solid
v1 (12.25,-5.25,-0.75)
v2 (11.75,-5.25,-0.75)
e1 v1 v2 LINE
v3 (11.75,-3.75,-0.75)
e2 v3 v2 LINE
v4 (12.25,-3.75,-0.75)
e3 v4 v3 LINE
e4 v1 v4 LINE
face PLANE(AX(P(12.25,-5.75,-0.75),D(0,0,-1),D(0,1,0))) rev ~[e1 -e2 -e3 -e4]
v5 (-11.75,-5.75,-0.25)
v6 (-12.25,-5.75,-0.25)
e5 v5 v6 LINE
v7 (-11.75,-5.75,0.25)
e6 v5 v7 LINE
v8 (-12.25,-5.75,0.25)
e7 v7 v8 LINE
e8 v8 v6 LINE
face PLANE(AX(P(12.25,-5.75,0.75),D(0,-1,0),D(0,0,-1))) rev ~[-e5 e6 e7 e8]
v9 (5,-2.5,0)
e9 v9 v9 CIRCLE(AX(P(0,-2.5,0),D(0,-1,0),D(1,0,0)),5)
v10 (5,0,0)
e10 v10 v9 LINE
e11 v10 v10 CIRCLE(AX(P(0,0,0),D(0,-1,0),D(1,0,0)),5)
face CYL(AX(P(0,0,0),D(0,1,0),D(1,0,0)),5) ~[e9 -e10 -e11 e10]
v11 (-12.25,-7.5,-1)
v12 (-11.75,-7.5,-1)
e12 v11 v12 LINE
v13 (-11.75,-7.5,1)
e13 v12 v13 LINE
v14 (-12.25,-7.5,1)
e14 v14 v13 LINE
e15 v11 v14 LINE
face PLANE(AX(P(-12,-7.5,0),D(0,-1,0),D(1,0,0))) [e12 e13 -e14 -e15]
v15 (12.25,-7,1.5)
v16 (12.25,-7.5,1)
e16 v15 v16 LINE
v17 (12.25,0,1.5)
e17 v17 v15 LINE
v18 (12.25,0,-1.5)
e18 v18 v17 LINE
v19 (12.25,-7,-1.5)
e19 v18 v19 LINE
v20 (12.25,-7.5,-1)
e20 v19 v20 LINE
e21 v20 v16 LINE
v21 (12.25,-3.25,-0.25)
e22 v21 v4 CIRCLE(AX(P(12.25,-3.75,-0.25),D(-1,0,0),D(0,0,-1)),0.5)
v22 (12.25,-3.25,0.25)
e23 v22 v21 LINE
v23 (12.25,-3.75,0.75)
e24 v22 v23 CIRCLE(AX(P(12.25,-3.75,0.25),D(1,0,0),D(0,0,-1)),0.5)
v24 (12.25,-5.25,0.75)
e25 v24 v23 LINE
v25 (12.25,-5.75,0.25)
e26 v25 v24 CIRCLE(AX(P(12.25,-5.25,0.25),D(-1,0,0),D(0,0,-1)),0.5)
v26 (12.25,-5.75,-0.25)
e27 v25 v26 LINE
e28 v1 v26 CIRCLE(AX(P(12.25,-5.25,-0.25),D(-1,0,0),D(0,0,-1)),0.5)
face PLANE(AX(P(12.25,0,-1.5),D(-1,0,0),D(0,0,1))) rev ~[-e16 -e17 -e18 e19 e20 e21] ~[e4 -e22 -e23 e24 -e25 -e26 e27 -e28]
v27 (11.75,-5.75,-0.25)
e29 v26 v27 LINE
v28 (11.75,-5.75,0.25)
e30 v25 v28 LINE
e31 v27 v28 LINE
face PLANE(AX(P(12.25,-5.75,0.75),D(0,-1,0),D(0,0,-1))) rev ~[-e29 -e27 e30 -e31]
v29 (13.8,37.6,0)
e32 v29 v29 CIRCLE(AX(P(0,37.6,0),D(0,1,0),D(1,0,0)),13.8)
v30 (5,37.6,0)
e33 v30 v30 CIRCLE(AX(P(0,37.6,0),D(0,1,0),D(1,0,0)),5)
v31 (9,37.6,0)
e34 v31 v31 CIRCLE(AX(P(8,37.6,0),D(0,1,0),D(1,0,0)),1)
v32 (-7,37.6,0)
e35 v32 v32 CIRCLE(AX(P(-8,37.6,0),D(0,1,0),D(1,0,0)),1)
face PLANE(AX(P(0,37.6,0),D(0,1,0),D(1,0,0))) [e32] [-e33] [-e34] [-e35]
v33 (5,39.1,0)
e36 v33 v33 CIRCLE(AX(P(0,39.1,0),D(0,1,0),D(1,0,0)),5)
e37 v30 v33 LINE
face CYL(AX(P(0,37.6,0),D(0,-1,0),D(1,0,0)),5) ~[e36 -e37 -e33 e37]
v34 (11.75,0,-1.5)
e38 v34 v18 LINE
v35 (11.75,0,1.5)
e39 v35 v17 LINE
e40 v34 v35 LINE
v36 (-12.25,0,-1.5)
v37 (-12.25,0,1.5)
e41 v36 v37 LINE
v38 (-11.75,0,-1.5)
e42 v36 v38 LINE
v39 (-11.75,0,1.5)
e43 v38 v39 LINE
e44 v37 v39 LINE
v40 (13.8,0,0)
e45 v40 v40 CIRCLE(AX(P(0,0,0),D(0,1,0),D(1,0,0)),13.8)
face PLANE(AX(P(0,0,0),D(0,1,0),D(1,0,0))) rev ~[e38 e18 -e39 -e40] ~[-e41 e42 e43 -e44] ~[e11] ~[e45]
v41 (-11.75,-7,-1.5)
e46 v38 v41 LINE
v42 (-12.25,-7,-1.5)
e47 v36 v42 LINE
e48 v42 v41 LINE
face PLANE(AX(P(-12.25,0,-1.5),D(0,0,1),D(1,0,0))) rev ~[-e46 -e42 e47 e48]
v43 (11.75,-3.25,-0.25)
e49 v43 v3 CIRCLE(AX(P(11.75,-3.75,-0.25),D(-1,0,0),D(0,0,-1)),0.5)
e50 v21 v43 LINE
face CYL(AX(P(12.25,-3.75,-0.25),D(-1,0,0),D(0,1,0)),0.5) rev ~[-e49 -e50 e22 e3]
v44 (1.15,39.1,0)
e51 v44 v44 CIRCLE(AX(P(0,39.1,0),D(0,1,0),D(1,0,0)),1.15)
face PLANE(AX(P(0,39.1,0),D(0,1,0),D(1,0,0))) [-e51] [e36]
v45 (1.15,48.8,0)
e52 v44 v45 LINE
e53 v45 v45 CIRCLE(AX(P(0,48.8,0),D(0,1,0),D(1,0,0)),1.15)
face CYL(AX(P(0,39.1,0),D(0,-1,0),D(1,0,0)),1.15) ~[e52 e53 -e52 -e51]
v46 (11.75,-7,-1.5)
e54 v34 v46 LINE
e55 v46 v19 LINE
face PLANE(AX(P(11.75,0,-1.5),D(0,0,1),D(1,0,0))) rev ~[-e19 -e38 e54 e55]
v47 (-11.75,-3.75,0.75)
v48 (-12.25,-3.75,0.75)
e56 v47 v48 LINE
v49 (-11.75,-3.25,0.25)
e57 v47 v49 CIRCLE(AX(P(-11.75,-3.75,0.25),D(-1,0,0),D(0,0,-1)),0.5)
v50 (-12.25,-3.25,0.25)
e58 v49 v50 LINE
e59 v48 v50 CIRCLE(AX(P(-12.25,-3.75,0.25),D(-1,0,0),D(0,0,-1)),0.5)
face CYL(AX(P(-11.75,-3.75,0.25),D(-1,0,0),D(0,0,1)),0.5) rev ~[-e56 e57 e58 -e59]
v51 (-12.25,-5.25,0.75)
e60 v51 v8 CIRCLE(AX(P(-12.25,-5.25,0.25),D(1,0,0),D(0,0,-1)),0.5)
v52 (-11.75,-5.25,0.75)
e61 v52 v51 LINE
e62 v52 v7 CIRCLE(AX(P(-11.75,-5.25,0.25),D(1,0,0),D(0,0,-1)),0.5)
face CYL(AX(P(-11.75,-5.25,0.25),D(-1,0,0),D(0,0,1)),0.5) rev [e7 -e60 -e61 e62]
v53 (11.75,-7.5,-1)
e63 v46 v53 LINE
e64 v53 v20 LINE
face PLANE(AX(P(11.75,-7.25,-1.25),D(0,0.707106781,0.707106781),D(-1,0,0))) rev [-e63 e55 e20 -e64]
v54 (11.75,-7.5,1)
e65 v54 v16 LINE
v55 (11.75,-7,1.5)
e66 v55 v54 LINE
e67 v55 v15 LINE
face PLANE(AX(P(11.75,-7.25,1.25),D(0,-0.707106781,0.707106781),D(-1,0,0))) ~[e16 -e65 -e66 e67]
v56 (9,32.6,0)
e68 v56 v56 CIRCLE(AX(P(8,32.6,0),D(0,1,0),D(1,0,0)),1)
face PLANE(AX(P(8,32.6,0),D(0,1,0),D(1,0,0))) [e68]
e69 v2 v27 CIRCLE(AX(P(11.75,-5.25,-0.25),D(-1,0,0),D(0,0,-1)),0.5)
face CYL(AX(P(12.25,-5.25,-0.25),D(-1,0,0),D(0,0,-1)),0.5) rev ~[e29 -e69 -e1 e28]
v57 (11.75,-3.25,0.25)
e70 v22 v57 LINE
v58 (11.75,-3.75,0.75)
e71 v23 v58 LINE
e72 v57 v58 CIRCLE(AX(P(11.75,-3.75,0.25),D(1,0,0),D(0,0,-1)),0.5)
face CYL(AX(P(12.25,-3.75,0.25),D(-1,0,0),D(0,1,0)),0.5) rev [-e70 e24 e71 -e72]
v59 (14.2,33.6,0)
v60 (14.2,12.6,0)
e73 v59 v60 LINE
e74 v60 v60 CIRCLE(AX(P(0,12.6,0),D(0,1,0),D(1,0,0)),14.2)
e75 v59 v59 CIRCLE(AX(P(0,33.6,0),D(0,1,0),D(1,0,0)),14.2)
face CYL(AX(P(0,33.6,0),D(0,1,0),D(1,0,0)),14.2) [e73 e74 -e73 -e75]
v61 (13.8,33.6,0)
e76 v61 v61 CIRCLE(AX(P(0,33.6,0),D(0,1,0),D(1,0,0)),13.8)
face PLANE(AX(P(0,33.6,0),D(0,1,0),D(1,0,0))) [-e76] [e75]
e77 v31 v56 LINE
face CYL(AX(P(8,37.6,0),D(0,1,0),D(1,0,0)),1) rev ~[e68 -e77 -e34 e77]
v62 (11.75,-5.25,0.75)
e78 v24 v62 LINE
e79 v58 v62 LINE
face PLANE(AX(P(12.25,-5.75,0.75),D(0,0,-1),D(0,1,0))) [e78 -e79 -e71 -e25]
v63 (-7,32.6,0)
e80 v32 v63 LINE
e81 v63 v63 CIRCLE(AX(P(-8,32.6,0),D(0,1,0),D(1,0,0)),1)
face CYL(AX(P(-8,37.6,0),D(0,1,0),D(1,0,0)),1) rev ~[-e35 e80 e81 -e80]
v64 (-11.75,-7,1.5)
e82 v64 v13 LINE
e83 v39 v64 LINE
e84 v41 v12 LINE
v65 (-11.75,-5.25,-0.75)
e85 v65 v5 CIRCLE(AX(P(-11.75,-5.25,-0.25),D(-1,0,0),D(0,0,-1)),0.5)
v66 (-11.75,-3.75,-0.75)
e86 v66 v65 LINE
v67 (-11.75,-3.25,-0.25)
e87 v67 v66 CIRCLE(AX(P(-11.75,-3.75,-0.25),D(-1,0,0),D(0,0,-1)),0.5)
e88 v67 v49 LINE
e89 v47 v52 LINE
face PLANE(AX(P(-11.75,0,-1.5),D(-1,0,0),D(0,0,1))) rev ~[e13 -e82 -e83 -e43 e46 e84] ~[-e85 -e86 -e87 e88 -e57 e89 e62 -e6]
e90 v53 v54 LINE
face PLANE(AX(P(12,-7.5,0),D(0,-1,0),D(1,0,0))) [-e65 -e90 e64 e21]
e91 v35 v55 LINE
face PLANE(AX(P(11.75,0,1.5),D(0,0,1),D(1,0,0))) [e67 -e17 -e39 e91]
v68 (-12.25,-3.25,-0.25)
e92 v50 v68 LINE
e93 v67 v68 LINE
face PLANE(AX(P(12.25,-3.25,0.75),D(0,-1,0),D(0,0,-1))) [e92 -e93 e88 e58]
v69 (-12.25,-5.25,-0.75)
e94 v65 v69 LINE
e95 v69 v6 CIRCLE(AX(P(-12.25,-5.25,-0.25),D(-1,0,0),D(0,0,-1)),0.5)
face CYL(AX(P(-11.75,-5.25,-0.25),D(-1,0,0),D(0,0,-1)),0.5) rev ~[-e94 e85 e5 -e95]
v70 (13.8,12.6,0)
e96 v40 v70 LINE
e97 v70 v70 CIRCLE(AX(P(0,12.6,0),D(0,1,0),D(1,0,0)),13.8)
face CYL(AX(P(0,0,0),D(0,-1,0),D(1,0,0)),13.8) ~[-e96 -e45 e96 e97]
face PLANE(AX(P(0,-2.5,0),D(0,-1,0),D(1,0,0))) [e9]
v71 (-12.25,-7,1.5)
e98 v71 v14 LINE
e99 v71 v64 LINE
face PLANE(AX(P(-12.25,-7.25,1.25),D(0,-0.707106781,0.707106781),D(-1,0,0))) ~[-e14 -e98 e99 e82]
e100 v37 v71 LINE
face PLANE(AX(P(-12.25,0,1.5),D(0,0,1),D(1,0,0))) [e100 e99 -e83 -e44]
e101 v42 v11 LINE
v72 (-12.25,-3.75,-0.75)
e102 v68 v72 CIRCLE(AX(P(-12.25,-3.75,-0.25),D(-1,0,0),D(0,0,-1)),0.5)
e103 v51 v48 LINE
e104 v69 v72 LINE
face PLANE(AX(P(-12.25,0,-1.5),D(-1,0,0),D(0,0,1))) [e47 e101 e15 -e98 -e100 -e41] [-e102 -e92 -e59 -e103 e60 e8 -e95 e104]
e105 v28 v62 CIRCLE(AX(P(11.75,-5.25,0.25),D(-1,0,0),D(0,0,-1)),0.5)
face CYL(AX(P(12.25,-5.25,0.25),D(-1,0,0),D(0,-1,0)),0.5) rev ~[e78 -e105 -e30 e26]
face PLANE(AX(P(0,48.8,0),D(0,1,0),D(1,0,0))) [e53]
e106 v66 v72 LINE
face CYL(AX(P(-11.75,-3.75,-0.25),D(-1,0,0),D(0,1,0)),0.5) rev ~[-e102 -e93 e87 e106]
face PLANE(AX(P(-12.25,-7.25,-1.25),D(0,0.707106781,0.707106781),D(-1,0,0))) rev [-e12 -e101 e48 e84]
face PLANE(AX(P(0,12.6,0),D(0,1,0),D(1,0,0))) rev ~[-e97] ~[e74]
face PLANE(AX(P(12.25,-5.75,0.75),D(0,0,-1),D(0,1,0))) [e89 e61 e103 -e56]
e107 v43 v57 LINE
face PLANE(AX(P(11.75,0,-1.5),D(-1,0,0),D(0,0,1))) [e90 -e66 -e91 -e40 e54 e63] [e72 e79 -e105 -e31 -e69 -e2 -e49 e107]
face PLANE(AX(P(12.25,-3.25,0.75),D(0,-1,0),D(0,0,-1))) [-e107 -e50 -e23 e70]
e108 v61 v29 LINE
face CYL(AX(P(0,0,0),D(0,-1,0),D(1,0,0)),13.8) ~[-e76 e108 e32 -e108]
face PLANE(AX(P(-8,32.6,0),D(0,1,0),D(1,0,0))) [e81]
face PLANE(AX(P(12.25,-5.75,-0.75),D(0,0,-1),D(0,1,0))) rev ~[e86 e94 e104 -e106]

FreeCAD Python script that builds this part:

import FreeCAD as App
import Part
import Sketcher
from FreeCAD import Vector
Q = App.Units.Quantity


def edges_at(feature, points):
    """Names of the edges that pass closest to the given points."""
    edges = feature.Shape.Edges
    near = lambda p: min(range(len(edges)), key=lambda i: edges[i].distToShape(Part.Vertex(*p))[0])
    return sorted({f"Edge{near(p) + 1}" for p in points})


def add_polygon(sketch, points):
    """Adds a closed chain of lines whose ends are joined by coincident constraints."""
    first, n = sketch.GeometryCount, len(points)
    for a, b in zip(points, points[1:] + points[:1]):
        sketch.addGeometry(Part.LineSegment(App.Vector(*a, 0), App.Vector(*b, 0)), False)
    for i in range(n):
        sketch.addConstraint(Sketcher.Constraint("Coincident", first + i, 2, first + (i + 1) % n, 1))

doc = App.newDocument("Part")
body = doc.addObject("PartDesign::Body", "Body")

# Sketch on XZ plane
sketch1 = body.newObject("Sketcher::SketchObject", "Sketch")
sketch1.AttachmentSupport = (doc.getObject("XZ_Plane"), [""])
sketch1.MapMode = "FlatFace"
sketch1.addGeometry(Part.Circle(Vector(0, 0, 0), Vector(0, 0, 1), 13.8), False)
sketch1.addConstraint([
    Sketcher.Constraint("Coincident", 0, 3, -1, 1),
    Sketcher.Constraint("Diameter", 0, Q("27.6 mm")),
])
pad1 = body.newObject("PartDesign::Pad", "Pad")
pad1.Profile = sketch1
pad1.Length = 37.6
pad1.Reversed = True

# Sketch on XZ plane
sketch2 = body.newObject("Sketcher::SketchObject", "Sketch001")
sketch2.AttachmentSupport = (doc.getObject("XZ_Plane"), [""])
sketch2.MapMode = "FlatFace"
sketch2.AttachmentOffset = App.Placement(Vector(0, 0, -37.6), App.Rotation())
sketch2.addGeometry(Part.Circle(Vector(0, 0, 0), Vector(0, 0, 1), 5), False)
sketch2.addConstraint([
    Sketcher.Constraint("Coincident", 0, 3, -1, 1),
    Sketcher.Constraint("Diameter", 0, Q("10 mm")),
])
pad2 = body.newObject("PartDesign::Pad", "Pad001")
pad2.Profile = sketch2
pad2.Length = 1.5
pad2.Reversed = True

# Sketch on XZ plane
sketch3 = body.newObject("Sketcher::SketchObject", "Sketch002")
sketch3.AttachmentSupport = (doc.getObject("XZ_Plane"), [""])
sketch3.MapMode = "FlatFace"
sketch3.AttachmentOffset = App.Placement(Vector(0, 0, -39.1), App.Rotation())
sketch3.addGeometry(Part.Circle(Vector(0, 0, 0), Vector(0, 0, 1), 1.15), False)
sketch3.addConstraint([
    Sketcher.Constraint("Coincident", 0, 3, -1, 1),
    Sketcher.Constraint("Diameter", 0, Q("2.3 mm")),
])
pad3 = body.newObject("PartDesign::Pad", "Pad002")
pad3.Profile = sketch3
pad3.Length = 9.7
pad3.Reversed = True

# Sketch on XZ plane
sketch4 = body.newObject("Sketcher::SketchObject", "Sketch003")
sketch4.AttachmentSupport = (doc.getObject("XZ_Plane"), [""])
sketch4.MapMode = "FlatFace"
sketch4.AttachmentOffset = App.Placement(Vector(0, 0, -37.6), App.Rotation())
sketch4.addGeometry([
    Part.Circle(Vector(8, 0, 0), Vector(0, 0, 1), 1),
    Part.Circle(Vector(-8, 0, 0), Vector(0, 0, 1), 1),
], False)
sketch4.addConstraint([
    Sketcher.Constraint("Equal", 0, 1),
    Sketcher.Constraint("Symmetric", 0, 3, 1, 3, -1, 1),
    Sketcher.Constraint("PointOnObject", 0, 3, -1),
    Sketcher.Constraint("Diameter", 0, Q("2 mm")),
    Sketcher.Constraint("DistanceX", -1, 1, 0, 3, Q("8 mm")),
])
pocket1 = body.newObject("PartDesign::Pocket", "Pocket")
pocket1.Profile = sketch4
pocket1.Length = 5
pocket1.Reversed = True

# Sketch on XZ plane
sketch5 = body.newObject("Sketcher::SketchObject", "Sketch004")
sketch5.AttachmentSupport = (doc.getObject("XZ_Plane"), [""])
sketch5.MapMode = "FlatFace"
sketch5.addGeometry(Part.Circle(Vector(0, 0, 0), Vector(0, 0, 1), 5), False)
sketch5.addConstraint([
    Sketcher.Constraint("Coincident", 0, 3, -1, 1),
    Sketcher.Constraint("Diameter", 0, Q("10 mm")),
])
pad4 = body.newObject("PartDesign::Pad", "Pad003")
pad4.Profile = sketch5
pad4.Length = 2.5

# Sketch on XZ plane
sketch6 = body.newObject("Sketcher::SketchObject", "Sketch005")
sketch6.AttachmentSupport = (doc.getObject("XZ_Plane"), [""])
sketch6.MapMode = "FlatFace"
add_polygon(sketch6, [(11.75, 1.5), (11.75, -1.5), (12.25, -1.5), (12.25, 1.5)])  # lines 0-3
add_polygon(sketch6, [(-12.25, 1.5), (-12.25, -1.5), (-11.75, -1.5), (-11.75, 1.5)])  # lines 4-7
sketch6.addConstraint([
    Sketcher.Constraint("Vertical", 0),
    Sketcher.Constraint("Horizontal", 1),
    Sketcher.Constraint("Vertical", 2),
    Sketcher.Constraint("Horizontal", 3),
    Sketcher.Constraint("Vertical", 4),
    Sketcher.Constraint("Horizontal", 5),
    Sketcher.Constraint("Vertical", 6),
    Sketcher.Constraint("Horizontal", 7),
    Sketcher.Constraint("Symmetric", 2, 2, 4, 2, -1, 1),
    Sketcher.Constraint("Symmetric", 0, 2, 6, 2, -1, 1),
    Sketcher.Constraint("Horizontal", 1, 2, 4, 2),
    Sketcher.Constraint("DistanceY", 0, 2, 0, 1, Q("3 mm")),
    Sketcher.Constraint("DistanceX", 1, 1, 1, 2, Q("0.5 mm")),
    Sketcher.Constraint("DistanceX", 4, 2, 0, 2, Q("24 mm")),
])
pad5 = body.newObject("PartDesign::Pad", "Pad004")
pad5.Profile = sketch6
pad5.Length = 7.5

# Sketch on YZ plane
sketch7 = body.newObject("Sketcher::SketchObject", "Sketch006")
sketch7.AttachmentSupport = (doc.getObject("YZ_Plane"), [""])
sketch7.MapMode = "FlatFace"
sketch7.AttachmentOffset = App.Placement(Vector(0, 0, 12.25), App.Rotation())
add_polygon(sketch7, [(-3.25, 0.75), (-5.75, 0.75), (-5.75, -0.75), (-3.25, -0.75)])  # lines 0-3
sketch7.addConstraint([
    Sketcher.Constraint("Horizontal", 0),
    Sketcher.Constraint("Vertical", 1),
    Sketcher.Constraint("Horizontal", 2),
    Sketcher.Constraint("Vertical", 3),
    Sketcher.Constraint("DistanceX", 0, 2, 0, 1, Q("2.5 mm")),
    Sketcher.Constraint("DistanceY", 1, 2, 1, 1, Q("1.5 mm")),
    Sketcher.Constraint("DistanceX", 0, 2, -1, 1, Q("5.75 mm")),
    Sketcher.Constraint("DistanceY", -1, 1, 0, 2, Q("0.75 mm")),
])
pocket2 = body.newObject("PartDesign::Pocket", "Pocket001")
pocket2.Profile = sketch7
pocket2.Length = 24.5
doc.recompute()

chamfer = body.newObject("PartDesign::Chamfer", "Chamfer")
chamfer.Base = (pocket2, edges_at(pocket2, [
    (12, -7.5, 1.5),
    (12, -7.5, -1.5),
    (-12, -7.5, 1.5),
    (-12, -7.5, -1.5),
]))
chamfer.Size = 0.5
doc.recompute()

fillet = body.newObject("PartDesign::Fillet", "Fillet")
fillet.Base = (chamfer, edges_at(chamfer, [
    (12, -3.25, -0.75),
    (-12, -3.25, -0.75),
    (12, -5.75, -0.75),
    (-12, -5.75, -0.75),
    (12, -5.75, 0.75),
    (-12, -5.75, 0.75),
    (12, -3.25, 0.75),
    (-12, -3.25, 0.75),
]))
fillet.Radius = 0.5

# Sketch on XZ plane
sketch8 = body.newObject("Sketcher::SketchObject", "Sketch007")
sketch8.AttachmentSupport = (doc.getObject("XZ_Plane"), [""])
sketch8.MapMode = "FlatFace"
sketch8.AttachmentOffset = App.Placement(Vector(0, 0, -33.6), App.Rotation())
sketch8.addGeometry([
    Part.Circle(Vector(0, 0, 0), Vector(0, 0, 1), 14.2),
    Part.Circle(Vector(0, 0, 0), Vector(0, 0, 1), 13.8),
], False)
sketch8.addConstraint([
    Sketcher.Constraint("Coincident", 0, 3, -1, 1),
    Sketcher.Constraint("Coincident", 1, 3, -1, 1),
    Sketcher.Constraint("Diameter", 0, Q("28.4 mm")),
    Sketcher.Constraint("Diameter", 1, Q("27.6 mm")),
])
pad6 = body.newObject("PartDesign::Pad", "Pad005")
pad6.Profile = sketch8
pad6.Length = 21

doc.recompute()
